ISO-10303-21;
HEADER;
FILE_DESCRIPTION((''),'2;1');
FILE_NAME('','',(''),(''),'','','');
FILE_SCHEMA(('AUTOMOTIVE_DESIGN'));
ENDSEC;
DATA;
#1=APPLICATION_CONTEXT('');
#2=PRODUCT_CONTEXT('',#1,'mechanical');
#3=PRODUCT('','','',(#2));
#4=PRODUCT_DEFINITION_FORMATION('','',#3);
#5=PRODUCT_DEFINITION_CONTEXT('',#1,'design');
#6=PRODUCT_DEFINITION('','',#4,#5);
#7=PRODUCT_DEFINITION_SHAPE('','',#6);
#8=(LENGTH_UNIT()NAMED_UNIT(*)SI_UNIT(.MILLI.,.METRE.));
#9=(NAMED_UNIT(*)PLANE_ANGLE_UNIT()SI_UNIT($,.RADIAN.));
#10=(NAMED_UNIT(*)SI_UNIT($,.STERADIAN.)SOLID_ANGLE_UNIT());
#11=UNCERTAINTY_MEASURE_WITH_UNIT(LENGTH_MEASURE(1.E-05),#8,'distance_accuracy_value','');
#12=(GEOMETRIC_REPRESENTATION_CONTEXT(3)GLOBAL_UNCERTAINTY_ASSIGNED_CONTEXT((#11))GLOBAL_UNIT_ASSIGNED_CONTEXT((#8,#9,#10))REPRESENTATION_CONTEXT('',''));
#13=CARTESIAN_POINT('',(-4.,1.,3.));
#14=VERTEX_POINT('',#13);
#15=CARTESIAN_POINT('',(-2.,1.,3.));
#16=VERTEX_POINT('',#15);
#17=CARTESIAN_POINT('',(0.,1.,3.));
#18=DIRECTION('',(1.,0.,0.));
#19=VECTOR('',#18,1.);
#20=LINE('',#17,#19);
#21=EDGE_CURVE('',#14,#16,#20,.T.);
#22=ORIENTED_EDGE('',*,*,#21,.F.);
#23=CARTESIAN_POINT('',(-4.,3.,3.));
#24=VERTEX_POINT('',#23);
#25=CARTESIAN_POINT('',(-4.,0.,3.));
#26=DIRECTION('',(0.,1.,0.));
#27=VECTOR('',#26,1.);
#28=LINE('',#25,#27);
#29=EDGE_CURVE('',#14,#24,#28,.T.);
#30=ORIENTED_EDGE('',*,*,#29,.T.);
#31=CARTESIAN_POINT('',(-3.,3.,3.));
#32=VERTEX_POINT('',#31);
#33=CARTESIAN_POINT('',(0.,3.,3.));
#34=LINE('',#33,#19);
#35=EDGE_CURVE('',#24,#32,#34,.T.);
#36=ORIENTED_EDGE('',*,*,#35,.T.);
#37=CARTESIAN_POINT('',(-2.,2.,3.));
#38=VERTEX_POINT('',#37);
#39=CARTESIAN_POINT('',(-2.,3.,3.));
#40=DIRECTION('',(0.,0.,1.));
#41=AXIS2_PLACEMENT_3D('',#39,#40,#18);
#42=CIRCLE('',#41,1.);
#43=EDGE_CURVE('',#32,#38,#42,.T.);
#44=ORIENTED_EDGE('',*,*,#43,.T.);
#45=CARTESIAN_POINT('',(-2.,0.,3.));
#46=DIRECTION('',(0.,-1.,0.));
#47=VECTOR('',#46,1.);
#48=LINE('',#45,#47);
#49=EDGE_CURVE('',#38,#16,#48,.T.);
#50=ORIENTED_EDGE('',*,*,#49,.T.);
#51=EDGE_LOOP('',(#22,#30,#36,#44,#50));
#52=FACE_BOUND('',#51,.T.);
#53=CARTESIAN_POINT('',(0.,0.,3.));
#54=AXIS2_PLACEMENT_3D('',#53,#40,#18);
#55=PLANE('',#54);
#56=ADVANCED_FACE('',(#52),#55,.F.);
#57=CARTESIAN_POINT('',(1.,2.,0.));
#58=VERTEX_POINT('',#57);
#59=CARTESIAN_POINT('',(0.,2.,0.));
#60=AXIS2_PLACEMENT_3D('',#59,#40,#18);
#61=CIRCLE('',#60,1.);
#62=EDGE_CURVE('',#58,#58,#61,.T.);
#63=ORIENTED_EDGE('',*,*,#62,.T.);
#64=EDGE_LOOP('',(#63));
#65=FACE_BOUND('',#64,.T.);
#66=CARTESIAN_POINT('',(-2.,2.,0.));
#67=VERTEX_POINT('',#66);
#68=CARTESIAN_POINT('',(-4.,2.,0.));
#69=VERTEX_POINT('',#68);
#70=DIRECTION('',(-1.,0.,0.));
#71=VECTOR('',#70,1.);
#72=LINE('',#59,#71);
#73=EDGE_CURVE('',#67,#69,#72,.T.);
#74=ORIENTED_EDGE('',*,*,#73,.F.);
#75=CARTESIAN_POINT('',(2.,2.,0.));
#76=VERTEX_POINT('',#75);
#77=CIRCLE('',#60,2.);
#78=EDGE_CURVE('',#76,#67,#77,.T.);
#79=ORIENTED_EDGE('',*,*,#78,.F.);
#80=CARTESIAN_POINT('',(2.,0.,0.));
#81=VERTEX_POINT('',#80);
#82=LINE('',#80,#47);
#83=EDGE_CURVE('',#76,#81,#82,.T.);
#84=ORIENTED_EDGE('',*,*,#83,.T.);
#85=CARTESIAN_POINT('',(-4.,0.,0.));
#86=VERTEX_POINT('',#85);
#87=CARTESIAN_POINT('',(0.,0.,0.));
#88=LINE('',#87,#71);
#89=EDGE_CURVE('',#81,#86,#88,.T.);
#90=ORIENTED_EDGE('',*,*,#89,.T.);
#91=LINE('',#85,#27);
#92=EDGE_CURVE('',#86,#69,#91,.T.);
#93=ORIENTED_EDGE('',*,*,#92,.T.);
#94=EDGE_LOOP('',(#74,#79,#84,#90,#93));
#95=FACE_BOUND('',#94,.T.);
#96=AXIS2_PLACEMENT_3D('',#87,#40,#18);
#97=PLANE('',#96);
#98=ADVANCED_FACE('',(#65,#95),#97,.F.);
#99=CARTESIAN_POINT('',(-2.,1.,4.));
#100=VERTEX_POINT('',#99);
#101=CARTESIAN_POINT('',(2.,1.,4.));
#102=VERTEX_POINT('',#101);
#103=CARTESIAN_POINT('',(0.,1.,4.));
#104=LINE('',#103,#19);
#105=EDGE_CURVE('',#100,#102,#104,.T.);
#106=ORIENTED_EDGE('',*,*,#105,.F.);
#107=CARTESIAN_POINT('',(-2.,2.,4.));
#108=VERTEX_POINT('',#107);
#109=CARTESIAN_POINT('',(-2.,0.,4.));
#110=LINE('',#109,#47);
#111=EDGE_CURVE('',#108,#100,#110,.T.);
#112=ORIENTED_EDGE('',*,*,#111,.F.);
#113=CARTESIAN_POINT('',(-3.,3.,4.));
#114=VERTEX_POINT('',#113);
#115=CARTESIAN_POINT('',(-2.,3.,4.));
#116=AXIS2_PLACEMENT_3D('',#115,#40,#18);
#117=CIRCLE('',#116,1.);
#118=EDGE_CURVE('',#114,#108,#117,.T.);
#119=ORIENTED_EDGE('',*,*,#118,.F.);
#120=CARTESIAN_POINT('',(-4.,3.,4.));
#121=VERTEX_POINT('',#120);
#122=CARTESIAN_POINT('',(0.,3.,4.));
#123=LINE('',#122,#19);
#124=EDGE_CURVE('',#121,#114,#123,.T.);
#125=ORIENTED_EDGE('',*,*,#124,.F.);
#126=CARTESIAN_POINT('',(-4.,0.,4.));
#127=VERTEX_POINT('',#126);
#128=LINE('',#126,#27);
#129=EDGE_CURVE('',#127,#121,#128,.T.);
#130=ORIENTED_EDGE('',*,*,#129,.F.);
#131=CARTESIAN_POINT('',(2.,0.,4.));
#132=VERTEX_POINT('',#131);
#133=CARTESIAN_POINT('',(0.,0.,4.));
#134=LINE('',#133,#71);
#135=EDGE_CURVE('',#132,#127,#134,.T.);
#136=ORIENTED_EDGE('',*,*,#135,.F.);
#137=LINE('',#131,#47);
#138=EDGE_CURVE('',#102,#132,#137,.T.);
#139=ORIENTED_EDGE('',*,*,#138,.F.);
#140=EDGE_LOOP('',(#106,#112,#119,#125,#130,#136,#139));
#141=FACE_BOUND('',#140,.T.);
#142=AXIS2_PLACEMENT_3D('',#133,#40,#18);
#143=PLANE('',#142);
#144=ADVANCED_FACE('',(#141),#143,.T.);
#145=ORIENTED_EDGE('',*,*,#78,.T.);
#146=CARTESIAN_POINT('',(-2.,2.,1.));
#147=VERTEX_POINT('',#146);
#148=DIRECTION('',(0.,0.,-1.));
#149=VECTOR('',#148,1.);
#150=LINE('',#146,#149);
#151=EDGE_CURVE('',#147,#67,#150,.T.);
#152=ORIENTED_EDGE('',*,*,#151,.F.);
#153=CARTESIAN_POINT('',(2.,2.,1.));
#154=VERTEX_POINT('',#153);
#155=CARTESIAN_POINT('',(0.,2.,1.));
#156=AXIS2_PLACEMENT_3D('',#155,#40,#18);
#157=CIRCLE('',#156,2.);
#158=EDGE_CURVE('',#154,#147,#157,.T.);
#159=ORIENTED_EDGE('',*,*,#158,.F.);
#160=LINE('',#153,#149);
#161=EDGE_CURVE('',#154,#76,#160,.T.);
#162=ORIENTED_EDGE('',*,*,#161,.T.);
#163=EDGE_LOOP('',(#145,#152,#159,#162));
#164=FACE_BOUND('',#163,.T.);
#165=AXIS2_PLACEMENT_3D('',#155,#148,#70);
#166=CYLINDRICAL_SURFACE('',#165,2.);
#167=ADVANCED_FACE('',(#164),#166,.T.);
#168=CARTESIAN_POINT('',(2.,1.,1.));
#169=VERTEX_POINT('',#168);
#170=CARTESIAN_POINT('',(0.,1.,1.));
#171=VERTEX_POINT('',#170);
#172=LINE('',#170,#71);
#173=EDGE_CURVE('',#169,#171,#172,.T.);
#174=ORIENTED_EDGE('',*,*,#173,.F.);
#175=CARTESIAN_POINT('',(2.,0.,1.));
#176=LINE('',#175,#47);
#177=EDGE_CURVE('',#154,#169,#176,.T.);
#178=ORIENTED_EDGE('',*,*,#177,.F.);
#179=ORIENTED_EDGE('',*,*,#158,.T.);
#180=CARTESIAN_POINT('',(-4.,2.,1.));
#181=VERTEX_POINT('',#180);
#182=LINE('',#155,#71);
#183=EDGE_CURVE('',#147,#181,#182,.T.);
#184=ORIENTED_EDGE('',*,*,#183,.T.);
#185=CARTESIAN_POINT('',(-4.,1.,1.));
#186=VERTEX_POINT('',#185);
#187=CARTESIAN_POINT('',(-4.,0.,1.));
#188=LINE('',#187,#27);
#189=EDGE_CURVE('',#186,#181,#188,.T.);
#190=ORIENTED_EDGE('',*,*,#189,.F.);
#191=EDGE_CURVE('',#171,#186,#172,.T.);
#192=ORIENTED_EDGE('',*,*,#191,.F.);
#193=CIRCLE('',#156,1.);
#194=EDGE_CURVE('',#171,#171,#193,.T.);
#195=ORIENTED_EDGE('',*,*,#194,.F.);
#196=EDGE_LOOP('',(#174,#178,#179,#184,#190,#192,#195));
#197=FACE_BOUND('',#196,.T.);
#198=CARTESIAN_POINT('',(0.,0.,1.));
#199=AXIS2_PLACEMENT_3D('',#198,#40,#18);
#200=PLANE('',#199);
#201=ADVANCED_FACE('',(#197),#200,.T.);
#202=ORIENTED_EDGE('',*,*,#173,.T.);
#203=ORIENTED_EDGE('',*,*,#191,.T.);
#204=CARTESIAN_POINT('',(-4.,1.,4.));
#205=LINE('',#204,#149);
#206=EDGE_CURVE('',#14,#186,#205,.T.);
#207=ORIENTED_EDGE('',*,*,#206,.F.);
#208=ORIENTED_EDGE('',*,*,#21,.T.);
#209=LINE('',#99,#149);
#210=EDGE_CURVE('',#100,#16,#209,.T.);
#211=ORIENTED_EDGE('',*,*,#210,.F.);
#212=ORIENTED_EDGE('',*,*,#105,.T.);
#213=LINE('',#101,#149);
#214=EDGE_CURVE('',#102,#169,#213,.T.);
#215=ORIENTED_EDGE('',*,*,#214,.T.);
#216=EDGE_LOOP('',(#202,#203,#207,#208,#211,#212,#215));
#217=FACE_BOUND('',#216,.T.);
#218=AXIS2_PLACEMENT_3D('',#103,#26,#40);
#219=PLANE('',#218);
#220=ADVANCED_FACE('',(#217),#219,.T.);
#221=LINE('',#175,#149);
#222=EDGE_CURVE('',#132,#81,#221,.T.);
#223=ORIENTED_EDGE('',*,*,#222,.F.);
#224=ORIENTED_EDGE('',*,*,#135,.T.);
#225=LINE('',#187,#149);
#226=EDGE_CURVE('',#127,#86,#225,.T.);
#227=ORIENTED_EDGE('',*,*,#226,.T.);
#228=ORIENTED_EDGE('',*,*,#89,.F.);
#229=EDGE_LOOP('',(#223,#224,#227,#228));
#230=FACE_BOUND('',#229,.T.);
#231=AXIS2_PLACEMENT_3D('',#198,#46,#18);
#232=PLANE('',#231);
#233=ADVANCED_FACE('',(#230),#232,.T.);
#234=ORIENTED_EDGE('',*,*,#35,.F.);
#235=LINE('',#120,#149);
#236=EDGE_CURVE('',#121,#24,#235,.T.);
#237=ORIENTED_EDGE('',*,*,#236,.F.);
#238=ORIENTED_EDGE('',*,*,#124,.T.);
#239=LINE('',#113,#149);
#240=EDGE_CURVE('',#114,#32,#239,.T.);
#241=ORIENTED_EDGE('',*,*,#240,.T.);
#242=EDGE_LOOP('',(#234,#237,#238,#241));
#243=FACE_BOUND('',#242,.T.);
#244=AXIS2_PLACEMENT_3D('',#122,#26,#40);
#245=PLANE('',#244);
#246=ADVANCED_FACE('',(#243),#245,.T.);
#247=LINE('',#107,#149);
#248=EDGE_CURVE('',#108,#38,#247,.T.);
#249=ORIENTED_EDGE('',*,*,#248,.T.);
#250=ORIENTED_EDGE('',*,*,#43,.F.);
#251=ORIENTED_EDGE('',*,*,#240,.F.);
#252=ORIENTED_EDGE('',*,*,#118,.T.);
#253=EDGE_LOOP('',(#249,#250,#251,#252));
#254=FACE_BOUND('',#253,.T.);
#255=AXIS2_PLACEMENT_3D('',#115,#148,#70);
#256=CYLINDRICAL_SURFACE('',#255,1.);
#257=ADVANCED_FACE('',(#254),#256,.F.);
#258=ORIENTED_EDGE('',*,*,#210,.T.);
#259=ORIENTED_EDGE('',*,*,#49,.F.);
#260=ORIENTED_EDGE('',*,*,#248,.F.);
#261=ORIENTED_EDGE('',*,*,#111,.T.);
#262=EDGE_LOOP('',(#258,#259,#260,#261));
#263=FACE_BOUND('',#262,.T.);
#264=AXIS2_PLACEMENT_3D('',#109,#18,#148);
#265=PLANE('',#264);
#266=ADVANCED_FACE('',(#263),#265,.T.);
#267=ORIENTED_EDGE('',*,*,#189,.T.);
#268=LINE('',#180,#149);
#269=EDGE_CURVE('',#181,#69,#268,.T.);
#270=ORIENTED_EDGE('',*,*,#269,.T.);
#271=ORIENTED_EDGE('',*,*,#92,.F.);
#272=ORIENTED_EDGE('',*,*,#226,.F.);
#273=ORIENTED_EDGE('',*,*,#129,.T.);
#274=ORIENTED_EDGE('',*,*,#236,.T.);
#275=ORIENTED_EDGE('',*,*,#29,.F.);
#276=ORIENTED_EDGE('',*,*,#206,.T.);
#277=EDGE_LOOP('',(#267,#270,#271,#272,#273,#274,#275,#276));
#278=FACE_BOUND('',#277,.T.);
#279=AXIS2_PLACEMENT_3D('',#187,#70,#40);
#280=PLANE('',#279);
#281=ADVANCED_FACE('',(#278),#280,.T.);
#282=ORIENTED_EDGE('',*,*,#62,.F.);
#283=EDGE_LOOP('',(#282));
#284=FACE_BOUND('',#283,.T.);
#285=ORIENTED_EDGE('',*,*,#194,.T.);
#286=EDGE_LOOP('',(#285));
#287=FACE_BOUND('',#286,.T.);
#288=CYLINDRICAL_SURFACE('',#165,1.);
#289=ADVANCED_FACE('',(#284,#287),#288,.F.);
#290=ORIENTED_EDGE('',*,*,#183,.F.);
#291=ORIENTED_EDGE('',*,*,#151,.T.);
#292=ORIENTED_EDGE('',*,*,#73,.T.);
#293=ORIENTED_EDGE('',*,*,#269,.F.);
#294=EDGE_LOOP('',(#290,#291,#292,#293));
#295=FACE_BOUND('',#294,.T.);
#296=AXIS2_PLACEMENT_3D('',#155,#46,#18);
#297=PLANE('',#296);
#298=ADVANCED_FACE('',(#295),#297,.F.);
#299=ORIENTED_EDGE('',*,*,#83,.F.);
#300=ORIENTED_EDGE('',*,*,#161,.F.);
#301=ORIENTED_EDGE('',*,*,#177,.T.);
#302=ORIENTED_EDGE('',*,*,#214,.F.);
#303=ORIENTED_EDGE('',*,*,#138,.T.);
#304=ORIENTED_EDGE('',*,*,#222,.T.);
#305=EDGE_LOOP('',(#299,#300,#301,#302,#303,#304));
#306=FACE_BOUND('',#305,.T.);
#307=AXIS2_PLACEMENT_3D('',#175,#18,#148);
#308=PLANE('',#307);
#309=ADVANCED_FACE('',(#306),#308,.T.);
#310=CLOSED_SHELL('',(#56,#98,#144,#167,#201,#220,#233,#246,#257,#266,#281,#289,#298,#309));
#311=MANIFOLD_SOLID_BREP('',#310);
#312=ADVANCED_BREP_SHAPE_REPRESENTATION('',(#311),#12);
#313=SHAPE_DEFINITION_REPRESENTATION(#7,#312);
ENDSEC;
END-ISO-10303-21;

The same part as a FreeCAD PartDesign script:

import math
import FreeCAD as App
import Part
import Sketcher
Q = App.Units.Quantity

doc = App.newDocument("Part")
body = doc.addObject("PartDesign::Body", "Body")

sketch1 = body.newObject("Sketcher::SketchObject", "Sketch")
sketch1.AttachmentSupport = (doc.getObject("XY_Plane"), [""])
sketch1.MapMode = "FlatFace"
sketch1.addGeometry([
    Part.ArcOfCircle(Part.Circle(App.Vector(0, 2, 0), App.Vector(0, 0, 1), 2), math.radians(0), math.radians(180)),
    Part.LineSegment(App.Vector(-2, 2, 0), App.Vector(-4, 2, 0)),
    Part.LineSegment(App.Vector(-4, 2, 0), App.Vector(-4, 0, 0)),
    Part.LineSegment(App.Vector(-4, 0, 0), App.Vector(2, 0, 0)),
    Part.LineSegment(App.Vector(2, 0, 0), App.Vector(2, 2, 0)),
    Part.Circle(App.Vector(0, 2, 0), App.Vector(0, 0, 1), 1),
], False)
sketch1.addConstraint([
    Sketcher.Constraint("Coincident", 0, 2, 1, 1),
    Sketcher.Constraint("Coincident", 1, 2, 2, 1),
    Sketcher.Constraint("Coincident", 2, 2, 3, 1),
    Sketcher.Constraint("Coincident", 3, 2, 4, 1),
    Sketcher.Constraint("Tangent", 4, 2, 0, 1),
    Sketcher.Constraint("Horizontal", 1),
    Sketcher.Constraint("Vertical", 2),
    Sketcher.Constraint("Horizontal", 3),
    Sketcher.Constraint("Vertical", 4),
    Sketcher.Constraint("Coincident", 5, 3, 0, 3),
    Sketcher.Constraint("Symmetric", 0, 2, 4, 2, -2),
    Sketcher.Constraint("PointOnObject", 2, 2, -1),
    Sketcher.Constraint("Equal", 1, 2),
    Sketcher.Constraint("Diameter", 5, Q("2 mm")),
    Sketcher.Constraint("Radius", 0, Q("2 mm")),
    Sketcher.Constraint("DistanceX", 1, 2, 1, 1, Q("2 mm")),
])
pad1 = body.newObject("PartDesign::Pad", "Pad")
pad1.Profile = sketch1
pad1.Length = 1

sketch2 = body.newObject("Sketcher::SketchObject", "Sketch001")
sketch2.AttachmentSupport = (doc.getObject("XY_Plane"), [""])
sketch2.MapMode = "FlatFace"
sketch2.addGeometry([
    Part.LineSegment(App.Vector(2, 0, 0), App.Vector(2, 1, 0)),
    Part.LineSegment(App.Vector(2, 1, 0), App.Vector(-4, 1, 0)),
    Part.LineSegment(App.Vector(-4, 1, 0), App.Vector(-4, 0, 0)),
    Part.LineSegment(App.Vector(-4, 0, 0), App.Vector(2, 0, 0)),
], False)
sketch2.addConstraint([
    Sketcher.Constraint("Coincident", 0, 2, 1, 1),
    Sketcher.Constraint("Coincident", 1, 2, 2, 1),
    Sketcher.Constraint("Coincident", 2, 2, 3, 1),
    Sketcher.Constraint("Coincident", 3, 2, 0, 1),
    Sketcher.Constraint("Vertical", 0),
    Sketcher.Constraint("Horizontal", 1),
    Sketcher.Constraint("Vertical", 2),
    Sketcher.Constraint("Horizontal", 3),
    Sketcher.Constraint("PointOnObject", 2, 2, -1),
    Sketcher.Constraint("DistanceX", 1, 2, 1, 1, Q("6 mm")),
    Sketcher.Constraint("DistanceY", 0, 1, 0, 2, Q("1 mm")),
    Sketcher.Constraint("DistanceX", -1, 1, 0, 2, Q("2 mm")),
])
pad2 = body.newObject("PartDesign::Pad", "Pad001")
pad2.Profile = sketch2
pad2.Length = 4

sketch3 = body.newObject("Sketcher::SketchObject", "Sketch002")
sketch3.AttachmentSupport = (doc.getObject("XY_Plane"), [""])
sketch3.MapMode = "FlatFace"
sketch3.AttachmentOffset = App.Placement(App.Vector(0, 0, 3), App.Rotation())
sketch3.addGeometry([
    Part.ArcOfCircle(Part.Circle(App.Vector(-2, 3, 0), App.Vector(0, 0, 1), 1), math.radians(-180), math.radians(-90)),
    Part.LineSegment(App.Vector(-3, 3, 0), App.Vector(-4, 3, 0)),
    Part.LineSegment(App.Vector(-4, 3, 0), App.Vector(-4, 1, 0)),
    Part.LineSegment(App.Vector(-4, 1, 0), App.Vector(-2, 1, 0)),
    Part.LineSegment(App.Vector(-2, 1, 0), App.Vector(-2, 2, 0)),
], False)
sketch3.addConstraint([
    Sketcher.Constraint("Coincident", 0, 1, 1, 1),
    Sketcher.Constraint("Coincident", 1, 2, 2, 1),
    Sketcher.Constraint("Coincident", 2, 2, 3, 1),
    Sketcher.Constraint("Coincident", 3, 2, 4, 1),
    Sketcher.Constraint("Coincident", 4, 2, 0, 2),
    Sketcher.Constraint("Horizontal", 1),
    Sketcher.Constraint("Vertical", 2),
    Sketcher.Constraint("Horizontal", 3),
    Sketcher.Constraint("Vertical", 4),
    Sketcher.Constraint("Vertical", 0, 3, 3, 2),
    Sketcher.Constraint("Equal", 3, 2),
    Sketcher.Constraint("Equal", 1, 4),
    Sketcher.Constraint("Radius", 0, Q("1 mm")),
    Sketcher.Constraint("DistanceX", 1, 2, 1, 1, Q("1 mm")),
    Sketcher.Constraint("DistanceX", 0, 3, -1, 1, Q("2 mm")),
    Sketcher.Constraint("DistanceY", -1, 1, 0, 3, Q("3 mm")),
])
pad3 = body.newObject("PartDesign::Pad", "Pad002")
pad3.Profile = sketch3
pad3.Length = 1

doc.recompute()
